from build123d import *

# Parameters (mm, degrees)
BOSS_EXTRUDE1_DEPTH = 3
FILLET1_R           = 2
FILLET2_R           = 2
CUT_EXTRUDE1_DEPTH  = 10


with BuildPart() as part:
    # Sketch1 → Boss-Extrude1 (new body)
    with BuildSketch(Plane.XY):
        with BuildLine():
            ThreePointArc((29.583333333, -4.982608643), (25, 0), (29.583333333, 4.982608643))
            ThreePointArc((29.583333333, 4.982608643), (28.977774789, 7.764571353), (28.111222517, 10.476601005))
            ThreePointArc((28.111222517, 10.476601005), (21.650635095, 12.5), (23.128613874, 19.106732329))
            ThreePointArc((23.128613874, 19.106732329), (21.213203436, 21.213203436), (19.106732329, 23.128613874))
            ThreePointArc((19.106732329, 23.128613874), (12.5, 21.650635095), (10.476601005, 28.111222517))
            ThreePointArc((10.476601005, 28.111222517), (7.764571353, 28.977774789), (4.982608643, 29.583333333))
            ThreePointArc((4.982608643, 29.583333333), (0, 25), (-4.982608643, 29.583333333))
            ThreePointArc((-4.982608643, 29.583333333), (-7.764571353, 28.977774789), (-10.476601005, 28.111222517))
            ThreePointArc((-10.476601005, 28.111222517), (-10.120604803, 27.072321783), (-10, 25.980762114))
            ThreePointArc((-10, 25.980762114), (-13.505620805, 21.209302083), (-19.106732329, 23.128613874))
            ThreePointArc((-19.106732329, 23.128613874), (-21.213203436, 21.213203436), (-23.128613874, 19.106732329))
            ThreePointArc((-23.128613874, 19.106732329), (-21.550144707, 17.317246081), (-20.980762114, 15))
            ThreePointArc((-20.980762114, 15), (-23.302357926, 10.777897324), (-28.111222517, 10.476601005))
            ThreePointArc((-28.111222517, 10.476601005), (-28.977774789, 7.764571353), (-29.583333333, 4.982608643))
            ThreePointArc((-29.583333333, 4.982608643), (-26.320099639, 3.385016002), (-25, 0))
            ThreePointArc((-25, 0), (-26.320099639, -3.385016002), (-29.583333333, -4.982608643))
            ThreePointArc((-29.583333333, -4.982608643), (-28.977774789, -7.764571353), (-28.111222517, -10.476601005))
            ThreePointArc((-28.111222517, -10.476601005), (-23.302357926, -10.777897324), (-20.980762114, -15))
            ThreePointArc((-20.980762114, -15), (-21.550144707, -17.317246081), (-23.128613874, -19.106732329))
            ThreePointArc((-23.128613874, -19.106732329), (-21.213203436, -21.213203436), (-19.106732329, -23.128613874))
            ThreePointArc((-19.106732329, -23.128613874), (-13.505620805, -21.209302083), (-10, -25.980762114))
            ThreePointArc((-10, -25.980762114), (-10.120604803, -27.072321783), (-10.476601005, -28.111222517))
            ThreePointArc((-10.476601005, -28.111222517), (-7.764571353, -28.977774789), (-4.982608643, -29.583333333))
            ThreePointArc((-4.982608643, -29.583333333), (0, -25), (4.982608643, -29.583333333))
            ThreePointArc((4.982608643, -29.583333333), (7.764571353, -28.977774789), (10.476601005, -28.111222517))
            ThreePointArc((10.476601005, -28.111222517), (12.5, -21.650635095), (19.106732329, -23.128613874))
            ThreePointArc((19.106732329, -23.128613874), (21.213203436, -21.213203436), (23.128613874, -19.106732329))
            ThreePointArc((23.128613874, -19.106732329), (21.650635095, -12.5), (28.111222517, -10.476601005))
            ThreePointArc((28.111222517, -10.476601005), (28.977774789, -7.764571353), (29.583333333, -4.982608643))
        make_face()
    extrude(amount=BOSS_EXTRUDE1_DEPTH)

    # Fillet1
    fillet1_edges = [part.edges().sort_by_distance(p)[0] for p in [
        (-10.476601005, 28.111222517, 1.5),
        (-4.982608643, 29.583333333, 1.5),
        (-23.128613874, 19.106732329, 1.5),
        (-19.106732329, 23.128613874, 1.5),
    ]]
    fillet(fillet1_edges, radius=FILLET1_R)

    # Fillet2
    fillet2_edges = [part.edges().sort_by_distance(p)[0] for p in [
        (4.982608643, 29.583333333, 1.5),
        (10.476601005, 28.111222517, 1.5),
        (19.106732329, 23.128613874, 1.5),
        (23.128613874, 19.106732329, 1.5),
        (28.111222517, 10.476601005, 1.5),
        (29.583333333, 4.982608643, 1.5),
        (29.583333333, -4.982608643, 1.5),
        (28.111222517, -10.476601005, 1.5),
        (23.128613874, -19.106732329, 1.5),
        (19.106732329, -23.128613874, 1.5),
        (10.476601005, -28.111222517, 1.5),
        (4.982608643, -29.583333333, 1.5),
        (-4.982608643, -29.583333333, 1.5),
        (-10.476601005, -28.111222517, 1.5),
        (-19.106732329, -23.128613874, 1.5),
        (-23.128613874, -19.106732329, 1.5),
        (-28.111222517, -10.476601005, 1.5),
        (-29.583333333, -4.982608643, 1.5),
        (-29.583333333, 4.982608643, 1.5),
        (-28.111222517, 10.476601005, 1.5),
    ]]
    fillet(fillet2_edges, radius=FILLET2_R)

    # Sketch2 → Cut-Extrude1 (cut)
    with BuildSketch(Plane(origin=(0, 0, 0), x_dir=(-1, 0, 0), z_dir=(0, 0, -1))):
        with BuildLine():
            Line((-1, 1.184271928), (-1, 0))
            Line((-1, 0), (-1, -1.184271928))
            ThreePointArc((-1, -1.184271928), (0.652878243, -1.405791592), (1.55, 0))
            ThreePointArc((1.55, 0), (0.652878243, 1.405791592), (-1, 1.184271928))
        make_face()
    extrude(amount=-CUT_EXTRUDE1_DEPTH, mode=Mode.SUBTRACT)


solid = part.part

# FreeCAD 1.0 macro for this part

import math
import FreeCAD as App
import Part
import Sketcher
from FreeCAD import Vector


def edges_at(feature, points):
    """Names of the edges that pass closest to the given points."""
    edges = feature.Shape.Edges
    near = lambda p: min(range(len(edges)), key=lambda i: edges[i].distToShape(Part.Vertex(*p))[0])
    return sorted({f"Edge{near(p) + 1}" for p in points})

doc = App.newDocument("Part")
params = doc.addObject("Spreadsheet::Sheet", "Params")
for row, (alias, value) in enumerate([
    ("sketch1_radius", "5 mm"),
    ("sketch1_radius2", "30 mm"),
    ("pad1_length", "3 mm"),
    ("fillet_radius", "2 mm"),
    ("fillet2_radius", "2 mm"),
    ("sketch2_radius", "1.55 mm"),
    ("pocket1_length", "10 mm"),
], start=1):
    params.set(f"A{row}", alias)
    params.set(f"B{row}", "=" + value)
    params.setAlias(f"B{row}", alias)

body = doc.addObject("PartDesign::Body", "Body")

sketch1 = doc.addObject("Sketcher::SketchObject", "Sketch")
body.addObject(sketch1)
sketch1.AttachmentSupport = (doc.XY_Plane, [""])
sketch1.MapMode = "FlatFace"
sketch1.addGeometry([
    Part.ArcOfCircle(Part.Circle(Vector(30, 0, 0), Vector(0, 0, 1), 5), math.radians(95), math.radians(265)),
    Part.ArcOfCircle(Part.Circle(Vector(0, 0, 0), Vector(0, 0, 1), 30), math.radians(9.56), math.radians(20.44)),
    Part.ArcOfCircle(Part.Circle(Vector(26, 15, 0), Vector(0, 0, 1), 5), math.radians(125), math.radians(295)),
    Part.ArcOfCircle(Part.Circle(Vector(0, 0, 0), Vector(0, 0, 1), 30), math.radians(39.56), math.radians(50.44)),
    Part.ArcOfCircle(Part.Circle(Vector(15, 26, 0), Vector(0, 0, 1), 5), math.radians(155), math.radians(325)),
    Part.ArcOfCircle(Part.Circle(Vector(0, 0, 0), Vector(0, 0, 1), 30), math.radians(69.56), math.radians(80.44)),
    Part.ArcOfCircle(Part.Circle(Vector(0, 30, 0), Vector(0, 0, 1), 5), math.radians(-175), math.radians(-5)),
    Part.ArcOfCircle(Part.Circle(Vector(0, 0, 0), Vector(0, 0, 1), 30), math.radians(99.56), math.radians(110.44)),
    Part.ArcOfCircle(Part.Circle(Vector(-15, 26, 0), Vector(0, 0, 1), 5), math.radians(0), math.radians(25)),
    Part.ArcOfCircle(Part.Circle(Vector(-15, 26, 0), Vector(0, 0, 1), 5), math.radians(-145), math.radians(0)),
    Part.ArcOfCircle(Part.Circle(Vector(0, 0, 0), Vector(0, 0, 1), 30), math.radians(129.56), math.radians(140.44)),
    Part.ArcOfCircle(Part.Circle(Vector(-26, 15, 0), Vector(0, 0, 1), 5), math.radians(0), math.radians(55)),
    Part.ArcOfCircle(Part.Circle(Vector(-26, 15, 0), Vector(0, 0, 1), 5), math.radians(-115), math.radians(0)),
    Part.ArcOfCircle(Part.Circle(Vector(0, 0, 0), Vector(0, 0, 1), 30), math.radians(159.56), math.radians(170.44)),
    Part.ArcOfCircle(Part.Circle(Vector(-30, 0, 0), Vector(0, 0, 1), 5), math.radians(0), math.radians(85)),
    Part.ArcOfCircle(Part.Circle(Vector(-30, 0, 0), Vector(0, 0, 1), 5), math.radians(-85), math.radians(0)),
    Part.ArcOfCircle(Part.Circle(Vector(0, 0, 0), Vector(0, 0, 1), 30), math.radians(-170.44), math.radians(-159.56)),
    Part.ArcOfCircle(Part.Circle(Vector(-26, -15, 0), Vector(0, 0, 1), 5), math.radians(0), math.radians(115)),
    Part.ArcOfCircle(Part.Circle(Vector(-26, -15, 0), Vector(0, 0, 1), 5), math.radians(-55), math.radians(0)),
    Part.ArcOfCircle(Part.Circle(Vector(0, 0, 0), Vector(0, 0, 1), 30), math.radians(-140.44), math.radians(-129.56)),
    Part.ArcOfCircle(Part.Circle(Vector(-15, -26, 0), Vector(0, 0, 1), 5), math.radians(0), math.radians(145)),
    Part.ArcOfCircle(Part.Circle(Vector(-15, -26, 0), Vector(0, 0, 1), 5), math.radians(-25), math.radians(0)),
    Part.ArcOfCircle(Part.Circle(Vector(0, 0, 0), Vector(0, 0, 1), 30), math.radians(-110.44), math.radians(-99.56)),
    Part.ArcOfCircle(Part.Circle(Vector(0, -30, 0), Vector(0, 0, 1), 5), math.radians(5), math.radians(175)),
    Part.ArcOfCircle(Part.Circle(Vector(0, 0, 0), Vector(0, 0, 1), 30), math.radians(-80.44), math.radians(-69.56)),
    Part.ArcOfCircle(Part.Circle(Vector(15, -26, 0), Vector(0, 0, 1), 5), math.radians(35), math.radians(205)),
    Part.ArcOfCircle(Part.Circle(Vector(0, 0, 0), Vector(0, 0, 1), 30), math.radians(-50.44), math.radians(-39.56)),
    Part.ArcOfCircle(Part.Circle(Vector(26, -15, 0), Vector(0, 0, 1), 5), math.radians(65), math.radians(235)),
    Part.ArcOfCircle(Part.Circle(Vector(0, 0, 0), Vector(0, 0, 1), 30), math.radians(-20.44), math.radians(-9.56)),
], False)
sketch1.addConstraint([
    Sketcher.Constraint("Coincident", 0, 1, 1, 1),
    Sketcher.Constraint("Coincident", 1, 2, 2, 2),
    Sketcher.Constraint("Coincident", 2, 1, 3, 1),
    Sketcher.Constraint("Coincident", 3, 2, 4, 2),
    Sketcher.Constraint("Coincident", 4, 1, 5, 1),
    Sketcher.Constraint("Coincident", 5, 2, 6, 2),
    Sketcher.Constraint("Coincident", 6, 1, 7, 1),
    Sketcher.Constraint("Coincident", 7, 2, 8, 2),
    Sketcher.Constraint("Tangent", 8, 1, 9, 2),
    Sketcher.Constraint("Coincident", 9, 1, 10, 1),
    Sketcher.Constraint("Coincident", 10, 2, 11, 2),
    Sketcher.Constraint("Tangent", 11, 1, 12, 2),
    Sketcher.Constraint("Coincident", 12, 1, 13, 1),
    Sketcher.Constraint("Coincident", 13, 2, 14, 2),
    Sketcher.Constraint("Tangent", 14, 1, 15, 2),
    Sketcher.Constraint("Coincident", 15, 1, 16, 1),
    Sketcher.Constraint("Coincident", 16, 2, 17, 2),
    Sketcher.Constraint("Tangent", 17, 1, 18, 2),
    Sketcher.Constraint("Coincident", 18, 1, 19, 1),
    Sketcher.Constraint("Coincident", 19, 2, 20, 2),
    Sketcher.Constraint("Tangent", 20, 1, 21, 2),
    Sketcher.Constraint("Coincident", 21, 1, 22, 1),
    Sketcher.Constraint("Coincident", 22, 2, 23, 2),
    Sketcher.Constraint("Coincident", 23, 1, 24, 1),
    Sketcher.Constraint("Coincident", 24, 2, 25, 2),
    Sketcher.Constraint("Coincident", 25, 1, 26, 1),
    Sketcher.Constraint("Coincident", 26, 2, 27, 2),
    Sketcher.Constraint("Coincident", 27, 1, 28, 1),
    Sketcher.Constraint("Coincident", 28, 2, 0, 2),
    Sketcher.Constraint("Coincident", 1, 3, -1, 1),
    Sketcher.Constraint("Coincident", 3, 3, -1, 1),
    Sketcher.Constraint("Coincident", 5, 3, -1, 1),
    Sketcher.Constraint("Coincident", 7, 3, -1, 1),
    Sketcher.Constraint("Coincident", 10, 3, -1, 1),
    Sketcher.Constraint("Coincident", 13, 3, -1, 1),
    Sketcher.Constraint("Coincident", 16, 3, -1, 1),
    Sketcher.Constraint("Coincident", 19, 3, -1, 1),
    Sketcher.Constraint("Coincident", 22, 3, -1, 1),
    Sketcher.Constraint("Coincident", 24, 3, -1, 1),
    Sketcher.Constraint("Coincident", 26, 3, -1, 1),
    Sketcher.Constraint("Coincident", 28, 3, -1, 1),
    Sketcher.Constraint("Equal", 0, 2),
    Sketcher.Constraint("Equal", 1, 3),
    Sketcher.Constraint("Equal", 2, 4),
    Sketcher.Constraint("Equal", 3, 5),
    Sketcher.Constraint("Equal", 4, 6),
    Sketcher.Constraint("Equal", 5, 7),
    Sketcher.Constraint("Equal", 6, 8),
    Sketcher.Constraint("Equal", 8, 9),
    Sketcher.Constraint("Equal", 7, 10),
    Sketcher.Constraint("Equal", 9, 11),
    Sketcher.Constraint("Equal", 11, 12),
    Sketcher.Constraint("Equal", 10, 13),
    Sketcher.Constraint("Equal", 12, 14),
    Sketcher.Constraint("Equal", 14, 15),
    Sketcher.Constraint("Equal", 13, 16),
    Sketcher.Constraint("Equal", 15, 17),
    Sketcher.Constraint("Equal", 17, 18),
    Sketcher.Constraint("Equal", 16, 19),
    Sketcher.Constraint("Equal", 18, 20),
    Sketcher.Constraint("Equal", 20, 21),
    Sketcher.Constraint("Equal", 19, 22),
    Sketcher.Constraint("Equal", 21, 23),
    Sketcher.Constraint("Equal", 22, 24),
    Sketcher.Constraint("Equal", 23, 25),
    Sketcher.Constraint("Equal", 24, 26),
    Sketcher.Constraint("Equal", 25, 27),
    Sketcher.Constraint("Equal", 26, 28),
    Sketcher.Constraint("Symmetric", 0, 3, 14, 3, -1, 1),
    Sketcher.Constraint("Symmetric", 2, 3, 17, 3, -1, 1),
    Sketcher.Constraint("Symmetric", 4, 3, 20, 3, -1, 1),
    Sketcher.Constraint("Symmetric", 6, 3, 23, 3, -1, 1),
    Sketcher.Constraint("Symmetric", 8, 3, 25, 3, -1, 1),
    Sketcher.Constraint("Symmetric", 11, 3, 27, 3, -1, 1),
    Sketcher.Constraint("Symmetric", 4, 3, 8, 3, -2),
    Sketcher.Constraint("Symmetric", 2, 3, 11, 3, -2),
    Sketcher.Constraint("PointOnObject", 0, 3, -1),
    Sketcher.Constraint("PointOnObject", 6, 3, -2),
    Sketcher.Constraint("PointOnObject", 14, 1, -1),
    Sketcher.Constraint("Horizontal", 9, 3, 8, 1),
    Sketcher.Constraint("Horizontal", 12, 3, 11, 1),
    Sketcher.Constraint("Horizontal", 27, 3, 17, 1),
    Sketcher.Constraint("Horizontal", 25, 3, 20, 1),
    Sketcher.Constraint("Radius", 0, 5.0),
    Sketcher.Constraint("Radius", 1, 30.0),
    Sketcher.Constraint("DistanceX", -1, 1, 0, 3, 30.0),
    Sketcher.Constraint("DistanceY", -1, 1, 2, 3, 15.0),
    Sketcher.Constraint("DistanceX", -1, 1, 4, 3, 15.0),
    Sketcher.Constraint("DistanceY", -1, 1, 6, 3, 30.0),
    Sketcher.Constraint("DistanceY", -1, 1, 1, 2, 10.476601),
    Sketcher.Constraint("DistanceX", -1, 1, 4, 1, 10.476601),
])
sketch1.setExpression("Constraints[83]", "Params.sketch1_radius")
sketch1.setExpression("Constraints[84]", "Params.sketch1_radius2")
pad1 = doc.addObject("PartDesign::Pad", "Pad")
body.addObject(pad1)
pad1.Profile = sketch1
pad1.setExpression("Length", "Params.pad1_length")
doc.recompute()

fillet = doc.addObject("PartDesign::Fillet", "Fillet")
body.addObject(fillet)
fillet.Base = (pad1, edges_at(pad1, [
    (-10.477, 28.111, 1.5),
    (-4.983, 29.583, 1.5),
    (-23.129, 19.107, 1.5),
    (-19.107, 23.129, 1.5),
]))
fillet.setExpression("Radius", "Params.fillet_radius")
doc.recompute()

fillet2 = doc.addObject("PartDesign::Fillet", "Fillet001")
body.addObject(fillet2)
fillet2.Base = (fillet, edges_at(fillet, [
    (4.983, 29.583, 1.5),
    (10.477, 28.111, 1.5),
    (19.107, 23.129, 1.5),
    (23.129, 19.107, 1.5),
    (28.111, 10.477, 1.5),
    (29.583, 4.983, 1.5),
    (29.583, -4.983, 1.5),
    (28.111, -10.477, 1.5),
    (23.129, -19.107, 1.5),
    (19.107, -23.129, 1.5),
    (10.477, -28.111, 1.5),
    (4.983, -29.583, 1.5),
    (-4.983, -29.583, 1.5),
    (-10.477, -28.111, 1.5),
    (-19.107, -23.129, 1.5),
    (-23.129, -19.107, 1.5),
    (-28.111, -10.477, 1.5),
    (-29.583, -4.983, 1.5),
    (-29.583, 4.983, 1.5),
    (-28.111, 10.477, 1.5),
]))
fillet2.setExpression("Radius", "Params.fillet2_radius")

sketch2 = doc.addObject("Sketcher::SketchObject", "Sketch001")
body.addObject(sketch2)
sketch2.AttachmentSupport = (doc.XY_Plane, [""])
sketch2.MapMode = "FlatFace"
sketch2.addGeometry([
    Part.LineSegment(Vector(1, 1.2, 0), Vector(1, -1.2, 0)),
    Part.ArcOfCircle(Part.Circle(Vector(0, 0, 0), Vector(0, 0, 1), 1.6), math.radians(180), math.radians(310)),
    Part.ArcOfCircle(Part.Circle(Vector(0, 0, 0), Vector(0, 0, 1), 1.6), math.radians(50), math.radians(180)),
], False)
sketch2.addConstraint([
    Sketcher.Constraint("Coincident", 0, 2, 1, 2),
    Sketcher.Constraint("Tangent", 1, 1, 2, 2),
    Sketcher.Constraint("Coincident", 2, 1, 0, 1),
    Sketcher.Constraint("Vertical", 0),
    Sketcher.Constraint("Coincident", 1, 3, -1, 1),
    Sketcher.Constraint("Equal", 1, 2),
    Sketcher.Constraint("PointOnObject", 1, 1, -1),
    Sketcher.Constraint("Radius", 1, 1.55),
    Sketcher.Constraint("DistanceX", -1, 1, 0, 2, 1.0),
])
sketch2.setExpression("Constraints[7]", "Params.sketch2_radius")
pocket1 = doc.addObject("PartDesign::Pocket", "Pocket")
body.addObject(pocket1)
pocket1.Profile = sketch2
pocket1.setExpression("Length", "Params.pocket1_length")
pocket1.Reversed = True

doc.recompute()
